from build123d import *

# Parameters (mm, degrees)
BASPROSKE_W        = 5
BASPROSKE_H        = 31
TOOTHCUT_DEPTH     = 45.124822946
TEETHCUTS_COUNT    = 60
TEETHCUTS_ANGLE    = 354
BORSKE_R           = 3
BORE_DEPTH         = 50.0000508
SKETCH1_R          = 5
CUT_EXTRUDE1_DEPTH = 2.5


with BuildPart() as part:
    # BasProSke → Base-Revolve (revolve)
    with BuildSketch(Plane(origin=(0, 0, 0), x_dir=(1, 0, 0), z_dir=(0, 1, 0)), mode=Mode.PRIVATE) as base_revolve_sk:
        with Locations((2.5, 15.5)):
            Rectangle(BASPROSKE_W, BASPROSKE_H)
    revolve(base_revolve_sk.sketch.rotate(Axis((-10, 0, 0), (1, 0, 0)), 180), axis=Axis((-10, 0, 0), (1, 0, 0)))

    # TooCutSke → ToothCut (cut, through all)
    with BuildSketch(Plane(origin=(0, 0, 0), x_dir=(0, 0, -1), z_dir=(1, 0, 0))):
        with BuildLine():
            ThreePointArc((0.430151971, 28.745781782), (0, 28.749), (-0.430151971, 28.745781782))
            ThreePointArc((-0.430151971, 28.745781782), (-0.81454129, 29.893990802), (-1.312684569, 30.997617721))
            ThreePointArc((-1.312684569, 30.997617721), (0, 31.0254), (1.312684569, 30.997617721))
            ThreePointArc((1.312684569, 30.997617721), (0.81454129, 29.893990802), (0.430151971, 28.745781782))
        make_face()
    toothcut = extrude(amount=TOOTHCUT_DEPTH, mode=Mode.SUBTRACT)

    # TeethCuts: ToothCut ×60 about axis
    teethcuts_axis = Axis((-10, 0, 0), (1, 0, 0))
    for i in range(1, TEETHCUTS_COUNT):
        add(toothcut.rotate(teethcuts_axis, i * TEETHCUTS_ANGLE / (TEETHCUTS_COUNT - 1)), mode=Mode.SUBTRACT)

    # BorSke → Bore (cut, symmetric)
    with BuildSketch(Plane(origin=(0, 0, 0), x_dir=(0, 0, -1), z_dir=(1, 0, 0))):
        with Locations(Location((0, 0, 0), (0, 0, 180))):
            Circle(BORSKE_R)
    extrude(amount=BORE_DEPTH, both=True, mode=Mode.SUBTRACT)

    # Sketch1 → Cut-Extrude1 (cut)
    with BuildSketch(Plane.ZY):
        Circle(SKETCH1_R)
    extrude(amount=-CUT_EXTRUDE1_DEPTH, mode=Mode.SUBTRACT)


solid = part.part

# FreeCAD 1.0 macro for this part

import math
import FreeCAD as App
import Part
import Sketcher

V = App.Vector
Q = App.Units.Quantity


def add_polygon(sketch, points):
    """Adds a closed chain of lines whose ends are joined by coincident constraints."""
    first, n = sketch.GeometryCount, len(points)
    for a, b in zip(points, points[1:] + points[:1]):
        sketch.addGeometry(Part.LineSegment(App.Vector(*a, 0), App.Vector(*b, 0)), False)
    for i in range(n):
        sketch.addConstraint(Sketcher.Constraint("Coincident", first + i, 2, first + (i + 1) % n, 1))

doc = App.newDocument("Part")
body = doc.addObject("PartDesign::Body", "Body")

sketch1 = body.newObject("Sketcher::SketchObject", "Sketch")
sketch1.AttachmentSupport = (doc.getObject("XZ_Plane"), [""])
sketch1.MapMode = "FlatFace"
add_polygon(sketch1, [(0, -31), (0, 0), (5, 0), (5, -31)])
sketch1.addConstraint(Sketcher.Constraint("Vertical", 0))
sketch1.addConstraint(Sketcher.Constraint("Horizontal", 1))
sketch1.addConstraint(Sketcher.Constraint("Vertical", 2))
sketch1.addConstraint(Sketcher.Constraint("Horizontal", 3))
sketch1.addConstraint(Sketcher.Constraint("Coincident", 0, 2, -1, 1))
sketch1.addConstraint(Sketcher.Constraint("DistanceX", 1, 1, 1, 2, Q("5 mm")))
sketch1.addConstraint(Sketcher.Constraint("DistanceY", 0, 1, 0, 2, Q("31 mm")))
revolution = body.newObject("PartDesign::Revolution", "Revolution")
revolution.Profile = sketch1
revolution.ReferenceAxis = (sketch1, ["H_Axis"])
revolution.Angle = 360

sketch2 = body.newObject("Sketcher::SketchObject", "Sketch001")
sketch2.AttachmentSupport = (doc.getObject("YZ_Plane"), [""])
sketch2.MapMode = "FlatFace"
sketch2.addGeometry(Part.ArcOfCircle(Part.Circle(V(0.000004, 0, 0), V(0, 0, 1), 28.748996), math.radians(-0.85731), math.radians(0.85731)), False)
sketch2.addGeometry(Part.ArcOfCircle(Part.Circle(V(25.515264, -11.98713, 0), V(0, 0, 1), 12), math.radians(62.815145), math.radians(74.382749)), False)
sketch2.addGeometry(Part.ArcOfCircle(Part.Circle(V(0, 0, 0), V(0, 0, 1), 31.0254), math.radians(-2.424908), math.radians(2.424908)), False)
sketch2.addGeometry(Part.ArcOfCircle(Part.Circle(V(25.515264, 11.98713, 0), V(0, 0, 1), 12), math.radians(-74.382749), math.radians(-62.815145)), False)
sketch2.addConstraint(Sketcher.Constraint("Coincident", 0, 1, 1, 2))
sketch2.addConstraint(Sketcher.Constraint("Coincident", 1, 1, 2, 1))
sketch2.addConstraint(Sketcher.Constraint("Coincident", 2, 2, 3, 2))
sketch2.addConstraint(Sketcher.Constraint("Coincident", 3, 1, 0, 2))
sketch2.addConstraint(Sketcher.Constraint("Coincident", 0, 3, -1, 1))
sketch2.addConstraint(Sketcher.Constraint("Coincident", 2, 3, -1, 1))
sketch2.addConstraint(Sketcher.Constraint("Equal", 1, 3))
sketch2.addConstraint(Sketcher.Constraint("Symmetric", 1, 3, 3, 3, -1))
sketch2.addConstraint(Sketcher.Constraint("Radius", 1, Q("12 mm")))
sketch2.addConstraint(Sketcher.Constraint("Radius", 2, Q("31.0254 mm")))
sketch2.addConstraint(Sketcher.Constraint("Radius", 0, Q("28.748996 mm")))
sketch2.addConstraint(Sketcher.Constraint("DistanceY", 1, 3, -1, 1, Q("11.98713 mm")))
sketch2.addConstraint(Sketcher.Constraint("DistanceY", 0, 1, -1, 1, Q("0.430152 mm")))
pocket1 = body.newObject("PartDesign::Pocket", "Pocket")
pocket1.Profile = sketch2
pocket1.Type = "ThroughAll"
pocket1.Reversed = True
doc.recompute()

polarpattern = body.newObject("PartDesign::PolarPattern", "PolarPattern")
polarpattern.Originals = [pocket1]
polarpattern.Axis = (doc.getObject("X_Axis"), [""])
polarpattern.Angle = 360
polarpattern.Occurrences = 60
body.Tip = polarpattern

sketch3 = body.newObject("Sketcher::SketchObject", "Sketch002")
sketch3.AttachmentSupport = (doc.getObject("YZ_Plane"), [""])
sketch3.MapMode = "FlatFace"
sketch3.addGeometry(Part.Circle(V(0, 0, 0), V(0, 0, 1), 3), False)
sketch3.addConstraint(Sketcher.Constraint("Coincident", 0, 3, -1, 1))
sketch3.addConstraint(Sketcher.Constraint("Diameter", 0, Q("6 mm")))
pocket2 = body.newObject("PartDesign::Pocket", "Pocket001")
pocket2.Profile = sketch3
pocket2.Length = 100.000102
pocket2.Midplane = True

sketch4 = body.newObject("Sketcher::SketchObject", "Sketch003")
sketch4.AttachmentSupport = (doc.getObject("YZ_Plane"), [""])
sketch4.MapMode = "FlatFace"
sketch4.addGeometry(Part.Circle(V(0, 0, 0), V(0, 0, 1), 5), False)
sketch4.addConstraint(Sketcher.Constraint("Coincident", 0, 3, -1, 1))
sketch4.addConstraint(Sketcher.Constraint("Diameter", 0, Q("10 mm")))
pocket3 = body.newObject("PartDesign::Pocket", "Pocket002")
pocket3.Profile = sketch4
pocket3.Length = 2.5
pocket3.Reversed = True

doc.recompute()
